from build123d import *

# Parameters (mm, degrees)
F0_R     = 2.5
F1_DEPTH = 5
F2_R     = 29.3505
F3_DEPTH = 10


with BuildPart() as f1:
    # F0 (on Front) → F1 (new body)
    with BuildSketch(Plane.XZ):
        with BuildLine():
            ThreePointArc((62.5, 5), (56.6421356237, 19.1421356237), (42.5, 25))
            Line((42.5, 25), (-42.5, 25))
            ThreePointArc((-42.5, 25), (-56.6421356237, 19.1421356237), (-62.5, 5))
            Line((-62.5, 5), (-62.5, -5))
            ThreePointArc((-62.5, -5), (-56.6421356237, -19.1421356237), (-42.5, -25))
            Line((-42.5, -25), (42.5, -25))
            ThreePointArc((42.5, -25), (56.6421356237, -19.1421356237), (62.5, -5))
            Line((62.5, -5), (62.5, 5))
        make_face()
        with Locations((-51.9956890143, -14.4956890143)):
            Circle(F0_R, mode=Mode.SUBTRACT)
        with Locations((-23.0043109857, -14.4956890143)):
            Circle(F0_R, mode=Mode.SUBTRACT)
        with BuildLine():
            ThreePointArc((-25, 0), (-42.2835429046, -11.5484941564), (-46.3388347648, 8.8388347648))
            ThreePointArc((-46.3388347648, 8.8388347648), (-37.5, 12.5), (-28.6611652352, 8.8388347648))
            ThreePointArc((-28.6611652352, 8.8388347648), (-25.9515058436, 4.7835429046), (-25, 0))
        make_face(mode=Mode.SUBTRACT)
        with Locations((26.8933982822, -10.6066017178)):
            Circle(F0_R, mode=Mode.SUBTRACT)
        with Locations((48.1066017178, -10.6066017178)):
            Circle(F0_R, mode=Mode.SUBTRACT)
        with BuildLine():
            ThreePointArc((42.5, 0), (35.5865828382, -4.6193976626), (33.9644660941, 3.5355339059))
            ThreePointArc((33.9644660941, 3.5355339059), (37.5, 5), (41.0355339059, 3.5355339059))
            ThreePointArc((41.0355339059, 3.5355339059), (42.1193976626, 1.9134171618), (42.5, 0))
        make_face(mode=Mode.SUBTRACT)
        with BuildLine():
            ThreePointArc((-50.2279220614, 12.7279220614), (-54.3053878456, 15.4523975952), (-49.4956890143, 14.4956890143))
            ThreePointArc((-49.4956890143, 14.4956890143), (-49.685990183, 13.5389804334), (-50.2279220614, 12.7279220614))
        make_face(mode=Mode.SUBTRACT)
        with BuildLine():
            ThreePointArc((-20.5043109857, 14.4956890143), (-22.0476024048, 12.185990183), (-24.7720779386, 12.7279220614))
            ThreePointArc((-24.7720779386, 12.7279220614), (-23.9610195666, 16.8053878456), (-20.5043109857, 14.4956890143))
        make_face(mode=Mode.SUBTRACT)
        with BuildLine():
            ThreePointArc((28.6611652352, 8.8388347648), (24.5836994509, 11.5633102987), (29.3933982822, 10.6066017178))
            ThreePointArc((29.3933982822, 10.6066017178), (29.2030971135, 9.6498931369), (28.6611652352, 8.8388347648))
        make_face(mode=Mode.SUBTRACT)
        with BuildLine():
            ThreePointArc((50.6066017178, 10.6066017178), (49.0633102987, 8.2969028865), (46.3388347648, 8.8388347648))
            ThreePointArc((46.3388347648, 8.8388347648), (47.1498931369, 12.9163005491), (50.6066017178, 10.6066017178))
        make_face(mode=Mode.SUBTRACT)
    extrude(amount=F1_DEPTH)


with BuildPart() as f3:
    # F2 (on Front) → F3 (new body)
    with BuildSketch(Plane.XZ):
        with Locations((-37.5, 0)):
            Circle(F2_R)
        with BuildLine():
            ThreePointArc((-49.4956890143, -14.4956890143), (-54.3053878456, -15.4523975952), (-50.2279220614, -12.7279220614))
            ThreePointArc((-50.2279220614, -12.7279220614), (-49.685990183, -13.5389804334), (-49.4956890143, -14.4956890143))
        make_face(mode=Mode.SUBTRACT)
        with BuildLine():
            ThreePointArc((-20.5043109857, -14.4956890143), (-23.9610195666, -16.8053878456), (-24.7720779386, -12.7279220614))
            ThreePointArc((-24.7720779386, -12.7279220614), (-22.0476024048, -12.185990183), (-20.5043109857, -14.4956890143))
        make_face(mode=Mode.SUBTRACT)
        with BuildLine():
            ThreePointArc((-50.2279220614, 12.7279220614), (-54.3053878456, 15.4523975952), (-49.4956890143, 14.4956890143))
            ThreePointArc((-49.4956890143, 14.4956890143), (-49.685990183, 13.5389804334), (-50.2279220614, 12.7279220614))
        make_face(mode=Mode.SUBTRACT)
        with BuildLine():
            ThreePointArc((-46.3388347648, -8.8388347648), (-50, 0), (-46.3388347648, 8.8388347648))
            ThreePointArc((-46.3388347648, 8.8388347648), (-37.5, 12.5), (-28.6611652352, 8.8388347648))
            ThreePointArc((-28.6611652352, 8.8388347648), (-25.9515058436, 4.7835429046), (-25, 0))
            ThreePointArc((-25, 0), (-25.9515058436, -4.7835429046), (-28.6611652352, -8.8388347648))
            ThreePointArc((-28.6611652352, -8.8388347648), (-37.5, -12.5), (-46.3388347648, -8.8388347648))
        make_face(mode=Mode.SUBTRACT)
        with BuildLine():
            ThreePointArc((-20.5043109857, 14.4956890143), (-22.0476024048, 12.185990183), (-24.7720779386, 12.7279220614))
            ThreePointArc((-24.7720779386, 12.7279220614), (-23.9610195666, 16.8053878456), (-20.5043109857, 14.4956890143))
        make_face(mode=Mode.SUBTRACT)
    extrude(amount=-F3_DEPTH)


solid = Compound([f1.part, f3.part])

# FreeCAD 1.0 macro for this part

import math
import FreeCAD as App
import Part
import Sketcher
Q = App.Units.Quantity

doc = App.newDocument("Part")
body = doc.addObject("PartDesign::Body", "Body")

# Sketch on XZ plane
sketch1 = body.newObject("Sketcher::SketchObject", "Sketch")
sketch1.AttachmentSupport = (doc.getObject("XZ_Plane"), [""])
sketch1.MapMode = "FlatFace"
sketch1.addGeometry([
    Part.ArcOfCircle(Part.Circle(App.Vector(42.5, 5, 0), App.Vector(0, 0, 1), 20), math.radians(0), math.radians(90)),  # 0
    Part.LineSegment(App.Vector(42.5, 25, 0), App.Vector(-42.5, 25, 0)),  # 1
    Part.ArcOfCircle(Part.Circle(App.Vector(-42.5, 5, 0), App.Vector(0, 0, 1), 20), math.radians(90), math.radians(180)),  # 2
    Part.LineSegment(App.Vector(-62.5, 5, 0), App.Vector(-62.5, -5, 0)),  # 3
    Part.ArcOfCircle(Part.Circle(App.Vector(-42.5, -5, 0), App.Vector(0, 0, 1), 20), math.radians(180), math.radians(270)),  # 4
    Part.LineSegment(App.Vector(-42.5, -25, 0), App.Vector(42.5, -25, 0)),  # 5
    Part.ArcOfCircle(Part.Circle(App.Vector(42.5, -5, 0), App.Vector(0, 0, 1), 20), math.radians(-90), math.radians(0)),  # 6
    Part.LineSegment(App.Vector(62.5, -5, 0), App.Vector(62.5, 5, 0)),  # 7
    Part.Circle(App.Vector(-52, -14.5, 0), App.Vector(0, 0, 1), 2.5),  # 8
    Part.Circle(App.Vector(-23, -14.5, 0), App.Vector(0, 0, 1), 2.5),  # 9
    Part.ArcOfCircle(Part.Circle(App.Vector(-37.5, 0, 0), App.Vector(0, 0, 1), 12.5), math.radians(0), math.radians(45)),  # 10
    Part.ArcOfCircle(Part.Circle(App.Vector(-37.5, 0, 0), App.Vector(0, 0, 1), 12.5), math.radians(135), math.radians(360)),  # 11
    Part.ArcOfCircle(Part.Circle(App.Vector(-37.5, 0, 0), App.Vector(0, 0, 1), 12.5), math.radians(45), math.radians(135)),  # 12
    Part.Circle(App.Vector(26.9, -10.6, 0), App.Vector(0, 0, 1), 2.5),  # 13
    Part.Circle(App.Vector(48.1, -10.6, 0), App.Vector(0, 0, 1), 2.5),  # 14
    Part.ArcOfCircle(Part.Circle(App.Vector(37.5, 0, 0), App.Vector(0, 0, 1), 5), math.radians(0), math.radians(45)),  # 15
    Part.ArcOfCircle(Part.Circle(App.Vector(37.5, 0, 0), App.Vector(0, 0, 1), 5), math.radians(135), math.radians(360)),  # 16
    Part.ArcOfCircle(Part.Circle(App.Vector(37.5, 0, 0), App.Vector(0, 0, 1), 5), math.radians(45), math.radians(135)),  # 17
    Part.ArcOfCircle(Part.Circle(App.Vector(-52, 14.5, 0), App.Vector(0, 0, 1), 2.5), math.radians(-45), math.radians(0)),  # 18
    Part.ArcOfCircle(Part.Circle(App.Vector(-52, 14.5, 0), App.Vector(0, 0, 1), 2.5), math.radians(0), math.radians(315)),  # 19
    Part.ArcOfCircle(Part.Circle(App.Vector(-23, 14.5, 0), App.Vector(0, 0, 1), 2.5), math.radians(0), math.radians(225)),  # 20
    Part.ArcOfCircle(Part.Circle(App.Vector(-23, 14.5, 0), App.Vector(0, 0, 1), 2.5), math.radians(-135), math.radians(0)),  # 21
    Part.ArcOfCircle(Part.Circle(App.Vector(26.9, 10.6, 0), App.Vector(0, 0, 1), 2.5), math.radians(-45), math.radians(0)),  # 22
    Part.ArcOfCircle(Part.Circle(App.Vector(26.9, 10.6, 0), App.Vector(0, 0, 1), 2.5), math.radians(0), math.radians(315)),  # 23
    Part.ArcOfCircle(Part.Circle(App.Vector(48.1, 10.6, 0), App.Vector(0, 0, 1), 2.5), math.radians(0), math.radians(225)),  # 24
    Part.ArcOfCircle(Part.Circle(App.Vector(48.1, 10.6, 0), App.Vector(0, 0, 1), 2.5), math.radians(-135), math.radians(0)),  # 25
], False)
sketch1.addConstraint([
    Sketcher.Constraint("Tangent", 0, 2, 1, 1),
    Sketcher.Constraint("Tangent", 1, 2, 2, 1),
    Sketcher.Constraint("Tangent", 2, 2, 3, 1),
    Sketcher.Constraint("Tangent", 3, 2, 4, 1),
    Sketcher.Constraint("Tangent", 4, 2, 5, 1),
    Sketcher.Constraint("Tangent", 5, 2, 6, 1),
    Sketcher.Constraint("Tangent", 6, 2, 7, 1),
    Sketcher.Constraint("Tangent", 7, 2, 0, 1),
    Sketcher.Constraint("Tangent", 10, 1, 11, 2),
    Sketcher.Constraint("Tangent", 11, 1, 12, 2),
    Sketcher.Constraint("Tangent", 12, 1, 10, 2),
    Sketcher.Constraint("Tangent", 15, 1, 16, 2),
    Sketcher.Constraint("Tangent", 16, 1, 17, 2),
    Sketcher.Constraint("Tangent", 17, 1, 15, 2),
    Sketcher.Constraint("Tangent", 18, 1, 19, 2),
    Sketcher.Constraint("Coincident", 19, 1, 18, 2),
    Sketcher.Constraint("Tangent", 20, 1, 21, 2),
    Sketcher.Constraint("Coincident", 21, 1, 20, 2),
    Sketcher.Constraint("Tangent", 22, 1, 23, 2),
    Sketcher.Constraint("Coincident", 23, 1, 22, 2),
    Sketcher.Constraint("Tangent", 24, 1, 25, 2),
    Sketcher.Constraint("Coincident", 25, 1, 24, 2),
    Sketcher.Constraint("Horizontal", 1),
    Sketcher.Constraint("Vertical", 3),
    Sketcher.Constraint("Horizontal", 5),
    Sketcher.Constraint("Vertical", 7),
    Sketcher.Constraint("Equal", 0, 2),
    Sketcher.Constraint("Equal", 2, 4),
    Sketcher.Constraint("Equal", 4, 6),
    Sketcher.Constraint("Equal", 8, 9),
    Sketcher.Constraint("Equal", 9, 13),
    Sketcher.Constraint("Equal", 13, 14),
    Sketcher.Constraint("Equal", 14, 18),
    Sketcher.Constraint("Equal", 19, 20),
    Sketcher.Constraint("Equal", 21, 22),
    Sketcher.Constraint("Equal", 23, 24),
    Sketcher.Constraint("Symmetric", 0, 3, 4, 3, -1, 1),
    Sketcher.Constraint("Symmetric", 10, 3, 15, 3, -1, 1),
    Sketcher.Constraint("Symmetric", 12, 1, 22, 1, -2),
    Sketcher.Constraint("Symmetric", 11, 1, 25, 1, -2),
    Sketcher.Constraint("Symmetric", 8, 3, 18, 3, -1),
    Sketcher.Constraint("Symmetric", 9, 3, 20, 3, -1),
    Sketcher.Constraint("Symmetric", 13, 3, 22, 3, -1),
    Sketcher.Constraint("Symmetric", 14, 3, 24, 3, -1),
    Sketcher.Constraint("PointOnObject", 10, 3, -1),
    Sketcher.Constraint("PointOnObject", 10, 1, -1),
    Sketcher.Constraint("PointOnObject", 15, 1, -1),
    Sketcher.Constraint("Horizontal", 8, 3, 9, 3),
    Sketcher.Constraint("Horizontal", 13, 3, 14, 3),
    Sketcher.Constraint("Horizontal", 11, 1, 12, 1),
    Sketcher.Constraint("Horizontal", 16, 1, 17, 1),
    Sketcher.Constraint("Horizontal", 21, 3, 19, 1),
    Sketcher.Constraint("Horizontal", 19, 1, 20, 1),
    Sketcher.Constraint("Horizontal", 18, 1, 21, 1),
    Sketcher.Constraint("Horizontal", 25, 3, 23, 1),
    Sketcher.Constraint("Horizontal", 23, 1, 24, 1),
    Sketcher.Constraint("Vertical", 5, 2, 15, 1),
    Sketcher.Constraint("Diameter", 8, Q("5 mm")),
    Sketcher.Constraint("Radius", 0, Q("20 mm")),
    Sketcher.Constraint("Radius", 15, Q("5 mm")),
    Sketcher.Constraint("Radius", 10, Q("12.5 mm")),
    Sketcher.Constraint("DistanceX", 1, 2, 1, 1, Q("85 mm")),
    Sketcher.Constraint("DistanceY", 3, 2, 3, 1, Q("10 mm")),
    Sketcher.Constraint("DistanceX", -1, 1, 13, 3, Q("26.893398 mm")),
    Sketcher.Constraint("DistanceX", 22, 1, 16, 1, Q("5.303301 mm")),
    Sketcher.Constraint("DistanceX", 8, 3, -1, 1, Q("51.995689 mm")),
    Sketcher.Constraint("DistanceY", 8, 3, -1, 1, Q("14.495689 mm")),
    Sketcher.Constraint("DistanceX", 9, 3, -1, 1, Q("23.004311 mm")),
    Sketcher.Constraint("DistanceX", 11, 1, -1, 1, Q("46.338835 mm")),
    Sketcher.Constraint("DistanceX", 18, 1, -1, 1, Q("50.227922 mm")),
])
pad1 = body.newObject("PartDesign::Pad", "Pad")
pad1.Profile = sketch1
pad1.Length = 5
body2 = doc.addObject("PartDesign::Body", "Body001")

# Sketch on XZ plane
sketch2 = body2.newObject("Sketcher::SketchObject", "Sketch001")
sketch2.AttachmentSupport = (doc.getObject("XZ_Plane001"), [""])
sketch2.MapMode = "FlatFace"
sketch2.addGeometry([
    Part.Circle(App.Vector(-37.5, 0, 0), App.Vector(0, 0, 1), 29.4),  # 0
    Part.ArcOfCircle(Part.Circle(App.Vector(-52, -14.5, 0), App.Vector(0, 0, 1), 2.5), math.radians(0), math.radians(45)),  # 1
    Part.ArcOfCircle(Part.Circle(App.Vector(-52, -14.5, 0), App.Vector(0, 0, 1), 2.5), math.radians(45), math.radians(360)),  # 2
    Part.ArcOfCircle(Part.Circle(App.Vector(-37.5, 0, 0), App.Vector(0, 0, 1), 12.5), math.radians(-135), math.radians(-45)),  # 3
    Part.ArcOfCircle(Part.Circle(App.Vector(-37.5, 0, 0), App.Vector(0, 0, 1), 12.5), math.radians(135), math.radians(225)),  # 4
    Part.ArcOfCircle(Part.Circle(App.Vector(-37.5, 0, 0), App.Vector(0, 0, 1), 12.5), math.radians(45), math.radians(135)),  # 5
    Part.ArcOfCircle(Part.Circle(App.Vector(-37.5, 0, 0), App.Vector(0, 0, 1), 12.5), math.radians(0), math.radians(45)),  # 6
    Part.ArcOfCircle(Part.Circle(App.Vector(-37.5, 0, 0), App.Vector(0, 0, 1), 12.5), math.radians(-45), math.radians(0)),  # 7
    Part.ArcOfCircle(Part.Circle(App.Vector(-23, -14.5, 0), App.Vector(0, 0, 1), 2.5), math.radians(0), math.radians(135)),  # 8
    Part.ArcOfCircle(Part.Circle(App.Vector(-23, -14.5, 0), App.Vector(0, 0, 1), 2.5), math.radians(135), math.radians(360)),  # 9
    Part.ArcOfCircle(Part.Circle(App.Vector(-52, 14.5, 0), App.Vector(0, 0, 1), 2.5), math.radians(-45), math.radians(0)),  # 10
    Part.ArcOfCircle(Part.Circle(App.Vector(-52, 14.5, 0), App.Vector(0, 0, 1), 2.5), math.radians(0), math.radians(315)),  # 11
    Part.ArcOfCircle(Part.Circle(App.Vector(-23, 14.5, 0), App.Vector(0, 0, 1), 2.5), math.radians(0), math.radians(225)),  # 12
    Part.ArcOfCircle(Part.Circle(App.Vector(-23, 14.5, 0), App.Vector(0, 0, 1), 2.5), math.radians(-135), math.radians(0)),  # 13
], False)
sketch2.addConstraint([
    Sketcher.Constraint("Tangent", 1, 1, 2, 2),
    Sketcher.Constraint("Coincident", 2, 1, 1, 2),
    Sketcher.Constraint("Tangent", 3, 1, 4, 2),
    Sketcher.Constraint("Tangent", 4, 1, 5, 2),
    Sketcher.Constraint("Tangent", 5, 1, 6, 2),
    Sketcher.Constraint("Tangent", 6, 1, 7, 2),
    Sketcher.Constraint("Tangent", 7, 1, 3, 2),
    Sketcher.Constraint("Tangent", 8, 1, 9, 2),
    Sketcher.Constraint("Coincident", 9, 1, 8, 2),
    Sketcher.Constraint("Tangent", 10, 1, 11, 2),
    Sketcher.Constraint("Coincident", 11, 1, 10, 2),
    Sketcher.Constraint("Tangent", 12, 1, 13, 2),
    Sketcher.Constraint("Coincident", 13, 1, 12, 2),
    Sketcher.Constraint("Coincident", 3, 3, 0, 3),
    Sketcher.Constraint("Coincident", 5, 3, 0, 3),
    Sketcher.Constraint("Equal", 2, 8),
    Sketcher.Constraint("Equal", 9, 10),
    Sketcher.Constraint("Equal", 11, 12),
    Sketcher.Constraint("Symmetric", 1, 3, 10, 3, -1),
    Sketcher.Constraint("Symmetric", 8, 3, 12, 3, -1),
    Sketcher.Constraint("Symmetric", 3, 1, 4, 1, -1),
    Sketcher.Constraint("PointOnObject", 6, 1, -1),
    Sketcher.Constraint("Horizontal", 2, 3, 8, 3),
    Sketcher.Constraint("Horizontal", 9, 3, 1, 1),
    Sketcher.Constraint("Horizontal", 4, 1, 5, 1),
    Sketcher.Constraint("Horizontal", 3, 1, 7, 1),
    Sketcher.Constraint("Horizontal", 1, 1, 8, 1),
    Sketcher.Constraint("Horizontal", 2, 1, 9, 1),
    Sketcher.Constraint("Horizontal", 13, 3, 11, 1),
    Sketcher.Constraint("Horizontal", 11, 1, 12, 1),
    Sketcher.Constraint("Horizontal", 10, 1, 13, 1),
    Sketcher.Constraint("Vertical", 2, 1, 10, 1),
    Sketcher.Constraint("Radius", 1, Q("2.5 mm")),
    Sketcher.Constraint("Radius", 3, Q("12.5 mm")),
    Sketcher.Constraint("Diameter", 0, Q("58.701 mm")),
    Sketcher.Constraint("DistanceX", 6, 1, -1, 1, Q("25 mm")),
    Sketcher.Constraint("DistanceX", 1, 3, -1, 1, Q("51.995689 mm")),
    Sketcher.Constraint("DistanceY", 1, 3, -1, 1, Q("14.495689 mm")),
    Sketcher.Constraint("DistanceX", 8, 3, -1, 1, Q("23.004311 mm")),
    Sketcher.Constraint("DistanceX", 2, 1, -1, 1, Q("50.227922 mm")),
    Sketcher.Constraint("DistanceX", 3, 1, -1, 1, Q("46.338835 mm")),
])
pad2 = body2.newObject("PartDesign::Pad", "Pad001")
pad2.Profile = sketch2
pad2.Length = 10
pad2.Reversed = True

doc.recompute()
